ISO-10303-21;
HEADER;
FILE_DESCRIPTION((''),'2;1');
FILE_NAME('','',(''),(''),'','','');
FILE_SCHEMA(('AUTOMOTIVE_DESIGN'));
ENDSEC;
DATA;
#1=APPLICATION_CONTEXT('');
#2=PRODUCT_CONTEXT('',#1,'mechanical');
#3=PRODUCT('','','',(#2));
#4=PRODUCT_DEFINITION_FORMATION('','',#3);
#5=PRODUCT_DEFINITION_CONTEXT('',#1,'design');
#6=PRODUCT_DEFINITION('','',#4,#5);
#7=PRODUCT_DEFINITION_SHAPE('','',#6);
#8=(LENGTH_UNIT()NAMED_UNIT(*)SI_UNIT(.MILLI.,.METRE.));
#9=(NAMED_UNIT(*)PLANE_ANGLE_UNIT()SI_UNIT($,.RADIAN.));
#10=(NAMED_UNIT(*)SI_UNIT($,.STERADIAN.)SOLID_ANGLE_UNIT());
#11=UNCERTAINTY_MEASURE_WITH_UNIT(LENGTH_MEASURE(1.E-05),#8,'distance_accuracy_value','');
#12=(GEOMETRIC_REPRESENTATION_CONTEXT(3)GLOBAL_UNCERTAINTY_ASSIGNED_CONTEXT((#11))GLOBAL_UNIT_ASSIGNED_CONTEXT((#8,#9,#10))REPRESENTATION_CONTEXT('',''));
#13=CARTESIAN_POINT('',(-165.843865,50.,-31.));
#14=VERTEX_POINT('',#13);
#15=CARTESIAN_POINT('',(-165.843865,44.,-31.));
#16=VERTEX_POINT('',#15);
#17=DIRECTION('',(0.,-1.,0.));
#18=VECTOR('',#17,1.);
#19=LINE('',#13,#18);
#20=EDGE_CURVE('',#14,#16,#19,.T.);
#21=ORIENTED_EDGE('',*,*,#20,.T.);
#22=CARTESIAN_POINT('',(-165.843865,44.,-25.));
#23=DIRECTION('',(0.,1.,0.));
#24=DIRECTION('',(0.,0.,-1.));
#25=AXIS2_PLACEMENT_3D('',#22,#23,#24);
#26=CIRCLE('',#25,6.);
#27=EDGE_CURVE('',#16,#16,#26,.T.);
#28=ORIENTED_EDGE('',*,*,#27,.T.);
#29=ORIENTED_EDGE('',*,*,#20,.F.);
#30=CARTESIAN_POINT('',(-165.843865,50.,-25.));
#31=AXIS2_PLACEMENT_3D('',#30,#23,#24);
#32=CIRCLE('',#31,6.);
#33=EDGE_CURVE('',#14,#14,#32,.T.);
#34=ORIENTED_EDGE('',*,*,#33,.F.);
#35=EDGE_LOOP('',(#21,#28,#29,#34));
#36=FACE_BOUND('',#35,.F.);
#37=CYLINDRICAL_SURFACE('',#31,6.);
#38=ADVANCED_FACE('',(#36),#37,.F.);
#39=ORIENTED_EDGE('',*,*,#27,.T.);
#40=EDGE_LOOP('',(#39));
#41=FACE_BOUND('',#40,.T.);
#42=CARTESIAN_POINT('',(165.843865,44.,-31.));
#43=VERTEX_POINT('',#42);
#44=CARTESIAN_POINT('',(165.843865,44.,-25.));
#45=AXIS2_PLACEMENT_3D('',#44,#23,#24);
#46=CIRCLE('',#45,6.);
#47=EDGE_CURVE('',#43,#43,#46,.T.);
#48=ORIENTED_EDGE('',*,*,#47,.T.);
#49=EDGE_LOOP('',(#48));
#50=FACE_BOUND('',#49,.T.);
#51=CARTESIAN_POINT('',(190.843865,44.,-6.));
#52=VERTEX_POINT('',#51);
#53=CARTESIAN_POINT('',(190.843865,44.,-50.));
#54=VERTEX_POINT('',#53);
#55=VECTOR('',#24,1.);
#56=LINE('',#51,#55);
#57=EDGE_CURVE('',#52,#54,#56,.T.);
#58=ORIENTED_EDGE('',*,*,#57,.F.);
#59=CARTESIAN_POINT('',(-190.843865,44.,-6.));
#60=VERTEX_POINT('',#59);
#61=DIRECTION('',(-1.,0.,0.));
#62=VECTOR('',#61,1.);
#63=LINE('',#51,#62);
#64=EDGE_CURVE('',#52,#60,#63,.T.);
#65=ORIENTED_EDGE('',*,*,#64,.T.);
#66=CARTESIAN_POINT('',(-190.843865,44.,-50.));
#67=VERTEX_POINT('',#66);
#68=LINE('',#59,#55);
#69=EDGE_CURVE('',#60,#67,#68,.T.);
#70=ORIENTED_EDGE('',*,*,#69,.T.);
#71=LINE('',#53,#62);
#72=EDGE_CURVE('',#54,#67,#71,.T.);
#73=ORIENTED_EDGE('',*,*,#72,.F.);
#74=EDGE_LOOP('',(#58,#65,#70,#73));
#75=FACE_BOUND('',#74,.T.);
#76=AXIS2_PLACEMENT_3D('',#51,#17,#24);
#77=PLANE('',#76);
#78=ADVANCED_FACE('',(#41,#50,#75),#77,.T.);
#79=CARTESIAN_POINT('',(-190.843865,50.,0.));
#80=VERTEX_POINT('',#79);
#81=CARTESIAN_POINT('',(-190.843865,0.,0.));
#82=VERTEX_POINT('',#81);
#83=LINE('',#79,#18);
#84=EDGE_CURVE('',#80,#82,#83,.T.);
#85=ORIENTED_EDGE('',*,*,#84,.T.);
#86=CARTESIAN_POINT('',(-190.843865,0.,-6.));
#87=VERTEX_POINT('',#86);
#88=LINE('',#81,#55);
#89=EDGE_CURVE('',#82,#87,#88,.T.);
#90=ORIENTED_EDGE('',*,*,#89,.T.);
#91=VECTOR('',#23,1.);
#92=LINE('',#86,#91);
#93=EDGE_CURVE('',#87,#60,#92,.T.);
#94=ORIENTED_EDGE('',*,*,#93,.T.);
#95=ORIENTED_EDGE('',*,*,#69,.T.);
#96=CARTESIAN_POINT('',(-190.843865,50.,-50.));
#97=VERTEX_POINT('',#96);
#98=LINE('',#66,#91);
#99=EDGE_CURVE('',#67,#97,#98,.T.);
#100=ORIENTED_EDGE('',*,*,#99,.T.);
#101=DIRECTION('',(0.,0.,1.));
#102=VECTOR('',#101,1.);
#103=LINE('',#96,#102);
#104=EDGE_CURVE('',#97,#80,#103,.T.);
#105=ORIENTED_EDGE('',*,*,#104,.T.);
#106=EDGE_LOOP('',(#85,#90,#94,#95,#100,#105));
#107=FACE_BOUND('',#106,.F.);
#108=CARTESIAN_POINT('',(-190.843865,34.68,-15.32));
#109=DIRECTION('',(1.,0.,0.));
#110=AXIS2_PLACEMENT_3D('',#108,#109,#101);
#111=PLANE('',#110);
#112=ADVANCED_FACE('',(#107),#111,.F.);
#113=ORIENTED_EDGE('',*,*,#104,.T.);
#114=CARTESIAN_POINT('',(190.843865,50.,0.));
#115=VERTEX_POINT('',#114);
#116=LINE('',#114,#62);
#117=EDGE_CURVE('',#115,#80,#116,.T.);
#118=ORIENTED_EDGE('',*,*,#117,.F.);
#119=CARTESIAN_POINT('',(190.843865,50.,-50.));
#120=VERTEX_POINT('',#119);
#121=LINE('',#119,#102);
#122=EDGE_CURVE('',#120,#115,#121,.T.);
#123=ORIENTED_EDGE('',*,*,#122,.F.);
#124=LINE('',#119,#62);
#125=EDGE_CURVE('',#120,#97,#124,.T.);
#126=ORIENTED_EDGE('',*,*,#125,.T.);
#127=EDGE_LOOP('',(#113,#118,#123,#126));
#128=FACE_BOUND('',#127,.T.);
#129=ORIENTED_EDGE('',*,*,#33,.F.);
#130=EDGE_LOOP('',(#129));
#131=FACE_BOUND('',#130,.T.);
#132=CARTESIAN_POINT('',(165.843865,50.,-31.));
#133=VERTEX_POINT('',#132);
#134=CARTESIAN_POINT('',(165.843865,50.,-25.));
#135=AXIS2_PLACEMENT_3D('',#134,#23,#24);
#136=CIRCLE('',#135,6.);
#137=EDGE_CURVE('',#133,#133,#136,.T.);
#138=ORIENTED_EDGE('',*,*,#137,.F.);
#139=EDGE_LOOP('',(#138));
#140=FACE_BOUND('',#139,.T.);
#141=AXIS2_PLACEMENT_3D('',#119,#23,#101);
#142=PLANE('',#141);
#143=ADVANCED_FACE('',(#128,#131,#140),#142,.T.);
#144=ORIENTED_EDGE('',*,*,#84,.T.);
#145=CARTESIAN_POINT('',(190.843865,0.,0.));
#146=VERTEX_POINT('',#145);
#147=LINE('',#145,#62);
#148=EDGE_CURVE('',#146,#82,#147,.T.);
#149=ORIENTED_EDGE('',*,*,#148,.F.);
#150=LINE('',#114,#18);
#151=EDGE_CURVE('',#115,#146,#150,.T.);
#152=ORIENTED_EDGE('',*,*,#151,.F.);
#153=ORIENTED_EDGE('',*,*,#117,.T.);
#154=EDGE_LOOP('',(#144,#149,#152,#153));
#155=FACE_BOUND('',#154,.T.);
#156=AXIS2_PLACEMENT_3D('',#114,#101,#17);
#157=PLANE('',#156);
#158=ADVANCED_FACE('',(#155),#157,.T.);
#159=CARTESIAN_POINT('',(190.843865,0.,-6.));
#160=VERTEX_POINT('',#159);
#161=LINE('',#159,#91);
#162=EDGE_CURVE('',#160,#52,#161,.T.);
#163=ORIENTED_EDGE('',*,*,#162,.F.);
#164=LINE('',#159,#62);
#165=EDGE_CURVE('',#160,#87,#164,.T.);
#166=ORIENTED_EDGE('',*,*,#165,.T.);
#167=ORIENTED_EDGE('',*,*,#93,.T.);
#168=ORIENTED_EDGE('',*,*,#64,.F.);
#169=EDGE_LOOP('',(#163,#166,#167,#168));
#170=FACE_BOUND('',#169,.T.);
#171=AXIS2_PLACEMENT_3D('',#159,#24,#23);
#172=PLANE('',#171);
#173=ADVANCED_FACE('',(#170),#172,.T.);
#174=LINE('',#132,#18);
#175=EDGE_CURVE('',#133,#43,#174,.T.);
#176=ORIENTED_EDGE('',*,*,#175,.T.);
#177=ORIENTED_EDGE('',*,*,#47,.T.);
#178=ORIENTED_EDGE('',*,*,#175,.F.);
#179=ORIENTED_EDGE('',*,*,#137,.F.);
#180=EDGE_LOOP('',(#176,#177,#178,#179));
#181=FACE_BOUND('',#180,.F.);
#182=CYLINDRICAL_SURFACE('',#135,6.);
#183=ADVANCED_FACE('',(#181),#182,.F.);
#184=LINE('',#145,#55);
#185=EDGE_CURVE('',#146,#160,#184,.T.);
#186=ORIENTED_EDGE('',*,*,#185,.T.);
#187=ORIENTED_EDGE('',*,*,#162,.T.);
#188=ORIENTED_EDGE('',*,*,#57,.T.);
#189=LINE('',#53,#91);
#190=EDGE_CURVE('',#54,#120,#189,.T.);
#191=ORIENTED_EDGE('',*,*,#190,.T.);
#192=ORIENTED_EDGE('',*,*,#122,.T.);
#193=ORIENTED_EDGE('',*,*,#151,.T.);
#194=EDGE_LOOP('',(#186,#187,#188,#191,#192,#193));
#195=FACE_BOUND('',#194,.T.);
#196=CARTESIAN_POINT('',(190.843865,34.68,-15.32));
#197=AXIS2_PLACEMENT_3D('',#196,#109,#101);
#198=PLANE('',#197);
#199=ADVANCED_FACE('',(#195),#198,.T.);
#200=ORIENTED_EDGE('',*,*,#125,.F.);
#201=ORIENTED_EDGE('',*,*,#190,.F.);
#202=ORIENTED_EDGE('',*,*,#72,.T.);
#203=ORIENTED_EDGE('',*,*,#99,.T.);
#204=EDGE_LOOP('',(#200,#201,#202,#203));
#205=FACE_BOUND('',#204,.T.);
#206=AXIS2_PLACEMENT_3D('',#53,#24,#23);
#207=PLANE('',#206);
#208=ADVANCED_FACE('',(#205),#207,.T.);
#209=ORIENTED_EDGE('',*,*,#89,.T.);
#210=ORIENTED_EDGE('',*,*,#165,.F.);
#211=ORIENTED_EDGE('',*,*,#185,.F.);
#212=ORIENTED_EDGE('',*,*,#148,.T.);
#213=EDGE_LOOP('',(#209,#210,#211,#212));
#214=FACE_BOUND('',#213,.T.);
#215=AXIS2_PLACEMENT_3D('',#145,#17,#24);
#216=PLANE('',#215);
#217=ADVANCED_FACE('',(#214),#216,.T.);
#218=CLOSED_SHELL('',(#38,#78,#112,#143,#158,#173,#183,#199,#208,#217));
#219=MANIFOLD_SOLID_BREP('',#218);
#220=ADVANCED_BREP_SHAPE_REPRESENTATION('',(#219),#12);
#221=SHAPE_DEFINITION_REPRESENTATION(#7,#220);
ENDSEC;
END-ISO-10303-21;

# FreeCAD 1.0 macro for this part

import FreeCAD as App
import Part
import Sketcher


def add_polygon(sketch, points):
    """Adds a closed chain of lines whose ends are joined by coincident constraints."""
    first, n = sketch.GeometryCount, len(points)
    for a, b in zip(points, points[1:] + points[:1]):
        sketch.addGeometry(Part.LineSegment(App.Vector(*a, 0), App.Vector(*b, 0)), False)
    for i in range(n):
        sketch.addConstraint(Sketcher.Constraint("Coincident", first + i, 2, first + (i + 1) % n, 1))

doc = App.newDocument("Part")
body = doc.addObject("PartDesign::Body", "Body")

sketch1 = body.newObject("Sketcher::SketchObject", "Sketch")
sketch1.AttachmentSupport = (doc.getObject("XY_Plane"), [""])
sketch1.MapMode = "FlatFace"
add_polygon(sketch1, [(0, 50), (0, 0), (50, 0), (50, 6), (6, 6), (6, 50)])
sketch1.addConstraint([
    Sketcher.Constraint("Vertical", 0),
    Sketcher.Constraint("Horizontal", 1),
    Sketcher.Constraint("Vertical", 2),
    Sketcher.Constraint("Horizontal", 3),
    Sketcher.Constraint("Vertical", 4),
    Sketcher.Constraint("Horizontal", 5),
    Sketcher.Constraint("Coincident", 0, 2, -1, 1),
    Sketcher.Constraint("Equal", 1, 0),
    Sketcher.Constraint("Equal", 5, 2),
    Sketcher.Constraint("DistanceX", 1, 1, 1, 2, 50.0),
    Sketcher.Constraint("DistanceX", 3, 2, 3, 1, 44.0),
])
pad1 = body.newObject("PartDesign::Pad", "Pad")
pad1.Profile = sketch1
pad1.Length = 381.68773

sketch2 = body.newObject("Sketcher::SketchObject", "Sketch001")
sketch2.AttachmentSupport = (doc.getObject("XZ_Plane"), [""])
sketch2.MapMode = "FlatFace"
sketch2.addGeometry([
    Part.Circle(App.Vector(25, 25, 0), App.Vector(0, 0, 1), 6),
    Part.Circle(App.Vector(25, 356.68773, 0), App.Vector(0, 0, 1), 6),
], False)
sketch2.addConstraint([
    Sketcher.Constraint("Equal", 0, 1),
    Sketcher.Constraint("Vertical", 0, 3, 1, 3),
    Sketcher.Constraint("Diameter", 0, 12.0),
    Sketcher.Constraint("DistanceX", -1, 1, 0, 3, 25.0),
    Sketcher.Constraint("DistanceY", -1, 1, 0, 3, 25.0),
    Sketcher.Constraint("DistanceY", -1, 1, 1, 3, 356.68773),
])
pocket1 = body.newObject("PartDesign::Pocket", "Pocket")
pocket1.Profile = sketch2
pocket1.Type = "ThroughAll"
body2 = doc.addObject("PartDesign::Body", "Body001")
doc.recompute()

body.Placement = App.Placement(App.Vector(0, 0, 0), App.Rotation(App.Vector(0, 1, 0), 90))
boolean = body2.newObject("PartDesign::Boolean", "Boolean")
boolean.Type = "Fuse"
boolean.addObjects([body])
body3 = doc.addObject("PartDesign::Body", "Body002")
doc.recompute()

body2.Placement = App.Placement(App.Vector(190.843865, 50, 0), App.Rotation(App.Vector(0, 0, 1), 180))
boolean2 = body3.newObject("PartDesign::Boolean", "Boolean001")
boolean2.Type = "Fuse"
boolean2.addObjects([body2])

doc.recompute()
